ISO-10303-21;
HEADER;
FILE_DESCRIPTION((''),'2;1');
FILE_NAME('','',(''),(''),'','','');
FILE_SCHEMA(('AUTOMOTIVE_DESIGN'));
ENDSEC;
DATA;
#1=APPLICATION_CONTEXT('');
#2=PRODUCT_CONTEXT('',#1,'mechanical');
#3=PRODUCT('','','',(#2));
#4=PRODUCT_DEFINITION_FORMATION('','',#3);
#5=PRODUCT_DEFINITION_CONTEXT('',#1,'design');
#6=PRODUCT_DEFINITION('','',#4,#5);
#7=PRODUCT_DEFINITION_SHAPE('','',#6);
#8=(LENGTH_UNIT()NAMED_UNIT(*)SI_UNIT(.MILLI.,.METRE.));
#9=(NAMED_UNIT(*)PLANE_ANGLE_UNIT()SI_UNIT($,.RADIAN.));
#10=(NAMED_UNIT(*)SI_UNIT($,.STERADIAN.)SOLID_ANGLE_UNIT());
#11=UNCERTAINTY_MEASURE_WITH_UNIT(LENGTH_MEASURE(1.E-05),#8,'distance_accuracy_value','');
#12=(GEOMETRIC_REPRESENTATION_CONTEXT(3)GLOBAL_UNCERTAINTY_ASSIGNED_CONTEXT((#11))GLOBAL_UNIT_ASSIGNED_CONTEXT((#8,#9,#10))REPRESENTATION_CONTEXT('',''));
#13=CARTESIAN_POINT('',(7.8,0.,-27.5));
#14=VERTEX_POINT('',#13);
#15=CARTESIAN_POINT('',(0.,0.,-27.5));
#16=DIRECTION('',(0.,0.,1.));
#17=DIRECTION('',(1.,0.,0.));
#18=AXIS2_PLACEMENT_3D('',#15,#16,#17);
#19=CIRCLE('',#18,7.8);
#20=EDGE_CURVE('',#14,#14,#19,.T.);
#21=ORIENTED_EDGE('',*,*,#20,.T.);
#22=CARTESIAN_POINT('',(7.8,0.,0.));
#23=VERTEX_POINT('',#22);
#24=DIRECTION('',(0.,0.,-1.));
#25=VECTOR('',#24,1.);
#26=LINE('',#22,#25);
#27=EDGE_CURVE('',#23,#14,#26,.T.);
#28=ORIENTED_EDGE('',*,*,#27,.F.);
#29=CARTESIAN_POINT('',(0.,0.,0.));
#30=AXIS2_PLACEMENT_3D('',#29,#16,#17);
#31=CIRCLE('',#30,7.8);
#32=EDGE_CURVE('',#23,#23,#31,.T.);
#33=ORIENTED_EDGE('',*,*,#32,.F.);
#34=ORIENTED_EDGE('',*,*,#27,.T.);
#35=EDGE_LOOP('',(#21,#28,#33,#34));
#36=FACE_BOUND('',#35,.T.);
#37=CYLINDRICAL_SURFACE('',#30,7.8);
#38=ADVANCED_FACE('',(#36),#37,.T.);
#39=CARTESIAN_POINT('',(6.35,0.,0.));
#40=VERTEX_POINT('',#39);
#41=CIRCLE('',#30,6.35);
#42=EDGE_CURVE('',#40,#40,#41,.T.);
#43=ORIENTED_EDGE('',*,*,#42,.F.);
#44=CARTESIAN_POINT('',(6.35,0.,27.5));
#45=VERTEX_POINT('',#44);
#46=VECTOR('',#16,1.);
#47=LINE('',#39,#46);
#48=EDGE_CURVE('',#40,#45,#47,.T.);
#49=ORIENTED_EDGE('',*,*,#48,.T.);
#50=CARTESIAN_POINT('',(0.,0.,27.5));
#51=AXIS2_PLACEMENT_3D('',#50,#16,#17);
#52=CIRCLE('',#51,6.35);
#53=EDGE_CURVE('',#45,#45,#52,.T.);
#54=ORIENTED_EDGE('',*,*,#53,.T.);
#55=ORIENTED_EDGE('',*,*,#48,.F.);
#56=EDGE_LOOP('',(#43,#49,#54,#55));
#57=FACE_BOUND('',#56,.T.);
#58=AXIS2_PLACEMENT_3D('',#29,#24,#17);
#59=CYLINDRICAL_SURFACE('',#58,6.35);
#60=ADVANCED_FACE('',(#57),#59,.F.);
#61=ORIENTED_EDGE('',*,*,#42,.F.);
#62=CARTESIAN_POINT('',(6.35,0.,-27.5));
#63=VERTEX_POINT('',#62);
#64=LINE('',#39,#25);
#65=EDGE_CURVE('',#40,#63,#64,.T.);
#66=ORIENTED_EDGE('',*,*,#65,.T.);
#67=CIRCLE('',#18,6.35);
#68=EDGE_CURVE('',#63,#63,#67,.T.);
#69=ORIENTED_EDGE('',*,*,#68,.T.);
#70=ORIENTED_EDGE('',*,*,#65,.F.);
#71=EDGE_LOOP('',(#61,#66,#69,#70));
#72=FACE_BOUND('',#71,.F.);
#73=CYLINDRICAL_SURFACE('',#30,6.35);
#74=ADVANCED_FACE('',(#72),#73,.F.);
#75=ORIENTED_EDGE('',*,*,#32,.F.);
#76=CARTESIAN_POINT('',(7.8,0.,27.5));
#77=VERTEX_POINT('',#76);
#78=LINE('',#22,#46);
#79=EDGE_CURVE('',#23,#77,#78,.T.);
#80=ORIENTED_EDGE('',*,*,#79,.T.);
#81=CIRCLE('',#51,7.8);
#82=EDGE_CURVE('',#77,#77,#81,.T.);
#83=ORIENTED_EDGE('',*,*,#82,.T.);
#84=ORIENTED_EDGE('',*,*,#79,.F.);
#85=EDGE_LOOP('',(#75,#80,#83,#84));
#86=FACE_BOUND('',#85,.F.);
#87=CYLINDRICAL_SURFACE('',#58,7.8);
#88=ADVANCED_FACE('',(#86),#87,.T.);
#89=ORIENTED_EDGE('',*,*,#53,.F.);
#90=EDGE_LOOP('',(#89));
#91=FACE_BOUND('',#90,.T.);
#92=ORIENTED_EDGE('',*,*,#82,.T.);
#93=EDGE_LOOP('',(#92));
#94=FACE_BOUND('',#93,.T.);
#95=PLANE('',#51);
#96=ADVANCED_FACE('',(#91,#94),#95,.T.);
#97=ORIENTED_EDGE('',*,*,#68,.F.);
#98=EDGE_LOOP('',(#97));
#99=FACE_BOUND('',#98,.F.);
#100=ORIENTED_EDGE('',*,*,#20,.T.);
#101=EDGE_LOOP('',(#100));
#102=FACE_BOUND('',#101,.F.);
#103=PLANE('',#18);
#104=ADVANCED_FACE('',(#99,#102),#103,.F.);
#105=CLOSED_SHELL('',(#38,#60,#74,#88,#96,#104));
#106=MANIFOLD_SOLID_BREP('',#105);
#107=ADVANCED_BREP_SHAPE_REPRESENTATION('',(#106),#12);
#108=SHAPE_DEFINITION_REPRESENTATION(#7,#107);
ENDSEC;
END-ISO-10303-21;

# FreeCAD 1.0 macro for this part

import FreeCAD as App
import Part
import Sketcher

V = App.Vector

doc = App.newDocument("Part")
body = doc.addObject("PartDesign::Body", "Body")

# Sketch on XY plane
sketch1 = body.newObject("Sketcher::SketchObject", "Sketch")
sketch1.AttachmentSupport = (doc.getObject("XY_Plane"), [""])
sketch1.MapMode = "FlatFace"
sketch1.addGeometry(Part.Circle(V(0, 0, 0), V(0, 0, 1), 7.8), False)
sketch1.addGeometry(Part.Circle(V(0, 0, 0), V(0, 0, 1), 6.35), False)
sketch1.addConstraint(Sketcher.Constraint("Coincident", 0, 3, -1, 1))
sketch1.addConstraint(Sketcher.Constraint("Coincident", 1, 3, -1, 1))
sketch1.addConstraint(Sketcher.Constraint("Diameter", 0, 15.6))
sketch1.addConstraint(Sketcher.Constraint("Diameter", 1, 12.7))
pad1 = body.newObject("PartDesign::Pad", "Pad")
pad1.Profile = sketch1
pad1.Length = 55
pad1.Midplane = True

doc.recompute()
